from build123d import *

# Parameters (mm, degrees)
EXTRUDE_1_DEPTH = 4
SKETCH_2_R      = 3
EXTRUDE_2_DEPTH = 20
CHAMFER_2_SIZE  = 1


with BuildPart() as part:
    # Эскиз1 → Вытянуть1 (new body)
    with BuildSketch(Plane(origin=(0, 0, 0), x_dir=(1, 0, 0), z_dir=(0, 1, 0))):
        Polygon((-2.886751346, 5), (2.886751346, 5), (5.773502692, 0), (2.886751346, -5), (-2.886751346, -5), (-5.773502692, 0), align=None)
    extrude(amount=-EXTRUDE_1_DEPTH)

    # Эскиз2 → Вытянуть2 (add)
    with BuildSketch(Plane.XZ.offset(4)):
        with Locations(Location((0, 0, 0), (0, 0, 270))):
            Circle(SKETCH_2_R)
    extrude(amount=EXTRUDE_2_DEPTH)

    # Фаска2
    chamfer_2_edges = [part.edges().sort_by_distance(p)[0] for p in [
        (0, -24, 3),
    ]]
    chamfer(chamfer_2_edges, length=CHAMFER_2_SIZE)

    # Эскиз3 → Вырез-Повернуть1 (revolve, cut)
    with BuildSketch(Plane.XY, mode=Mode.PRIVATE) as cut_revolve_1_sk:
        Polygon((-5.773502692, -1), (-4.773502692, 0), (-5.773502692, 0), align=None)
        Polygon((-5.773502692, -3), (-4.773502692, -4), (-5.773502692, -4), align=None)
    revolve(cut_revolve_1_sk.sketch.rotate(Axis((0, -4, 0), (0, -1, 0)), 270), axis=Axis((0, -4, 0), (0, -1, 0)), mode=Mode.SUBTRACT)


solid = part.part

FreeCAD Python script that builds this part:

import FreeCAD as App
import Part
import Sketcher
Q = App.Units.Quantity


def edges_at(feature, points):
    """Names of the edges that pass closest to the given points."""
    edges = feature.Shape.Edges
    near = lambda p: min(range(len(edges)), key=lambda i: edges[i].distToShape(Part.Vertex(*p))[0])
    return sorted({f"Edge{near(p) + 1}" for p in points})

doc = App.newDocument("Part")
params = doc.addObject("Spreadsheet::Sheet", "Params")
for row, (alias, value) in enumerate([
    ("pad1_length", "4 mm"),
    ("sketch2_diameter", "6 mm"),
    ("pad2_length", "20 mm"),
    ("chamfer_size", "1 mm"),
    ("sketch3_width", "1 mm"),
    ("groove_angle", "360 deg"),
], start=1):
    params.set(f"A{row}", alias)
    params.set(f"B{row}", "=" + value)
    params.setAlias(f"B{row}", alias)

body = doc.addObject("PartDesign::Body", "Body")

sketch1 = doc.addObject("Sketcher::SketchObject", "Sketch")
body.addObject(sketch1)
sketch1.AttachmentSupport = (doc.XZ_Plane, [""])
sketch1.MapMode = "FlatFace"
sketch1.addGeometry([
    Part.LineSegment(App.Vector(3, -5, 0), App.Vector(-3, -5, 0)),
    Part.LineSegment(App.Vector(-3, -5, 0), App.Vector(-6, 0, 0)),
    Part.LineSegment(App.Vector(-6, 0, 0), App.Vector(-3, 5, 0)),
    Part.LineSegment(App.Vector(-3, 5, 0), App.Vector(3, 5, 0)),
    Part.LineSegment(App.Vector(3, 5, 0), App.Vector(6, 0, 0)),
    Part.LineSegment(App.Vector(6, 0, 0), App.Vector(3, -5, 0)),
], False)
sketch1.addConstraint([
    Sketcher.Constraint("Coincident", 0, 2, 1, 1),
    Sketcher.Constraint("Coincident", 1, 2, 2, 1),
    Sketcher.Constraint("Coincident", 2, 2, 3, 1),
    Sketcher.Constraint("Coincident", 3, 2, 4, 1),
    Sketcher.Constraint("Coincident", 4, 2, 5, 1),
    Sketcher.Constraint("Coincident", 5, 2, 0, 1),
    Sketcher.Constraint("Horizontal", 0),
    Sketcher.Constraint("Horizontal", 3),
    Sketcher.Constraint("Symmetric", 0, 2, 3, 2, -1, 1),
    Sketcher.Constraint("Symmetric", 1, 2, 4, 2, -1, 1),
    Sketcher.Constraint("PointOnObject", 1, 2, -1),
    Sketcher.Constraint("Parallel", 2, 5),
    Sketcher.Constraint("Vertical", 0, 2, 2, 2),
    Sketcher.Constraint("Angle", 1, Q("120 deg")),
    Sketcher.Constraint("DistanceY", 0, 2, -1, 1, Q("5 mm")),
    Sketcher.Constraint("DistanceX", 0, 2, 0, 1, Q("5.773503 mm")),
])
pad1 = doc.addObject("PartDesign::Pad", "Pad")
body.addObject(pad1)
pad1.Profile = sketch1
pad1.setExpression("Length", "Params.pad1_length")

sketch2 = doc.addObject("Sketcher::SketchObject", "Sketch001")
body.addObject(sketch2)
sketch2.AttachmentSupport = (doc.XZ_Plane, [""])
sketch2.MapMode = "FlatFace"
sketch2.AttachmentOffset = App.Placement(App.Vector(0, 0, 4), App.Rotation())
sketch2.addGeometry(Part.Circle(App.Vector(0, 0, 0), App.Vector(0, 0, 1), 3), False)
sketch2.addConstraint([
    Sketcher.Constraint("Coincident", 0, 3, -1, 1),
    Sketcher.Constraint("Diameter", 0, Q("6 mm")),
])
sketch2.setExpression("Constraints[1]", "Params.sketch2_diameter")
pad2 = doc.addObject("PartDesign::Pad", "Pad001")
body.addObject(pad2)
pad2.Profile = sketch2
pad2.setExpression("Length", "Params.pad2_length")
doc.recompute()

chamfer = doc.addObject("PartDesign::Chamfer", "Chamfer")
body.addObject(chamfer)
chamfer.Base = (pad2, edges_at(pad2, [(0, -24, 3)]))
chamfer.setExpression("Size", "Params.chamfer_size")

sketch3 = doc.addObject("Sketcher::SketchObject", "Sketch002")
body.addObject(sketch3)
sketch3.AttachmentSupport = (doc.XY_Plane, [""])
sketch3.MapMode = "FlatFace"
sketch3.addGeometry([
    Part.LineSegment(App.Vector(-5.8, -1, 0), App.Vector(-4.8, 0, 0)),
    Part.LineSegment(App.Vector(-4.8, 0, 0), App.Vector(-5.8, 0, 0)),
    Part.LineSegment(App.Vector(-5.8, 0, 0), App.Vector(-5.8, -1, 0)),
    Part.LineSegment(App.Vector(-4.8, -4, 0), App.Vector(-5.8, -3, 0)),
    Part.LineSegment(App.Vector(-5.8, -3, 0), App.Vector(-5.8, -4, 0)),
    Part.LineSegment(App.Vector(-5.8, -4, 0), App.Vector(-4.8, -4, 0)),
], False)
sketch3.addConstraint([
    Sketcher.Constraint("Coincident", 0, 2, 1, 1),
    Sketcher.Constraint("Coincident", 1, 2, 2, 1),
    Sketcher.Constraint("Coincident", 2, 2, 0, 1),
    Sketcher.Constraint("Coincident", 3, 2, 4, 1),
    Sketcher.Constraint("Coincident", 4, 2, 5, 1),
    Sketcher.Constraint("Coincident", 5, 2, 3, 1),
    Sketcher.Constraint("Horizontal", 1),
    Sketcher.Constraint("Vertical", 2),
    Sketcher.Constraint("Vertical", 4),
    Sketcher.Constraint("Horizontal", 5),
    Sketcher.Constraint("PointOnObject", 0, 2, -1),
    Sketcher.Constraint("Perpendicular", 0, 3),
    Sketcher.Constraint("Vertical", 2, 2, 3, 2),
    Sketcher.Constraint("Vertical", 0, 2, 5, 2),
    Sketcher.Constraint("Equal", 5, 2),
    Sketcher.Constraint("DistanceX", 1, 2, 1, 1, Q("1 mm")),
    Sketcher.Constraint("DistanceY", 3, 2, -1, 1, Q("3 mm")),
    Sketcher.Constraint("DistanceX", 0, 2, -1, 1, Q("4.773503 mm")),
])
sketch3.setExpression("Constraints[15]", "Params.sketch3_width")
groove = doc.addObject("PartDesign::Groove", "Groove")
body.addObject(groove)
groove.Profile = sketch3
groove.ReferenceAxis = (sketch3, ["V_Axis"])
groove.setExpression("Angle", "Params.groove_angle")

doc.recompute()
